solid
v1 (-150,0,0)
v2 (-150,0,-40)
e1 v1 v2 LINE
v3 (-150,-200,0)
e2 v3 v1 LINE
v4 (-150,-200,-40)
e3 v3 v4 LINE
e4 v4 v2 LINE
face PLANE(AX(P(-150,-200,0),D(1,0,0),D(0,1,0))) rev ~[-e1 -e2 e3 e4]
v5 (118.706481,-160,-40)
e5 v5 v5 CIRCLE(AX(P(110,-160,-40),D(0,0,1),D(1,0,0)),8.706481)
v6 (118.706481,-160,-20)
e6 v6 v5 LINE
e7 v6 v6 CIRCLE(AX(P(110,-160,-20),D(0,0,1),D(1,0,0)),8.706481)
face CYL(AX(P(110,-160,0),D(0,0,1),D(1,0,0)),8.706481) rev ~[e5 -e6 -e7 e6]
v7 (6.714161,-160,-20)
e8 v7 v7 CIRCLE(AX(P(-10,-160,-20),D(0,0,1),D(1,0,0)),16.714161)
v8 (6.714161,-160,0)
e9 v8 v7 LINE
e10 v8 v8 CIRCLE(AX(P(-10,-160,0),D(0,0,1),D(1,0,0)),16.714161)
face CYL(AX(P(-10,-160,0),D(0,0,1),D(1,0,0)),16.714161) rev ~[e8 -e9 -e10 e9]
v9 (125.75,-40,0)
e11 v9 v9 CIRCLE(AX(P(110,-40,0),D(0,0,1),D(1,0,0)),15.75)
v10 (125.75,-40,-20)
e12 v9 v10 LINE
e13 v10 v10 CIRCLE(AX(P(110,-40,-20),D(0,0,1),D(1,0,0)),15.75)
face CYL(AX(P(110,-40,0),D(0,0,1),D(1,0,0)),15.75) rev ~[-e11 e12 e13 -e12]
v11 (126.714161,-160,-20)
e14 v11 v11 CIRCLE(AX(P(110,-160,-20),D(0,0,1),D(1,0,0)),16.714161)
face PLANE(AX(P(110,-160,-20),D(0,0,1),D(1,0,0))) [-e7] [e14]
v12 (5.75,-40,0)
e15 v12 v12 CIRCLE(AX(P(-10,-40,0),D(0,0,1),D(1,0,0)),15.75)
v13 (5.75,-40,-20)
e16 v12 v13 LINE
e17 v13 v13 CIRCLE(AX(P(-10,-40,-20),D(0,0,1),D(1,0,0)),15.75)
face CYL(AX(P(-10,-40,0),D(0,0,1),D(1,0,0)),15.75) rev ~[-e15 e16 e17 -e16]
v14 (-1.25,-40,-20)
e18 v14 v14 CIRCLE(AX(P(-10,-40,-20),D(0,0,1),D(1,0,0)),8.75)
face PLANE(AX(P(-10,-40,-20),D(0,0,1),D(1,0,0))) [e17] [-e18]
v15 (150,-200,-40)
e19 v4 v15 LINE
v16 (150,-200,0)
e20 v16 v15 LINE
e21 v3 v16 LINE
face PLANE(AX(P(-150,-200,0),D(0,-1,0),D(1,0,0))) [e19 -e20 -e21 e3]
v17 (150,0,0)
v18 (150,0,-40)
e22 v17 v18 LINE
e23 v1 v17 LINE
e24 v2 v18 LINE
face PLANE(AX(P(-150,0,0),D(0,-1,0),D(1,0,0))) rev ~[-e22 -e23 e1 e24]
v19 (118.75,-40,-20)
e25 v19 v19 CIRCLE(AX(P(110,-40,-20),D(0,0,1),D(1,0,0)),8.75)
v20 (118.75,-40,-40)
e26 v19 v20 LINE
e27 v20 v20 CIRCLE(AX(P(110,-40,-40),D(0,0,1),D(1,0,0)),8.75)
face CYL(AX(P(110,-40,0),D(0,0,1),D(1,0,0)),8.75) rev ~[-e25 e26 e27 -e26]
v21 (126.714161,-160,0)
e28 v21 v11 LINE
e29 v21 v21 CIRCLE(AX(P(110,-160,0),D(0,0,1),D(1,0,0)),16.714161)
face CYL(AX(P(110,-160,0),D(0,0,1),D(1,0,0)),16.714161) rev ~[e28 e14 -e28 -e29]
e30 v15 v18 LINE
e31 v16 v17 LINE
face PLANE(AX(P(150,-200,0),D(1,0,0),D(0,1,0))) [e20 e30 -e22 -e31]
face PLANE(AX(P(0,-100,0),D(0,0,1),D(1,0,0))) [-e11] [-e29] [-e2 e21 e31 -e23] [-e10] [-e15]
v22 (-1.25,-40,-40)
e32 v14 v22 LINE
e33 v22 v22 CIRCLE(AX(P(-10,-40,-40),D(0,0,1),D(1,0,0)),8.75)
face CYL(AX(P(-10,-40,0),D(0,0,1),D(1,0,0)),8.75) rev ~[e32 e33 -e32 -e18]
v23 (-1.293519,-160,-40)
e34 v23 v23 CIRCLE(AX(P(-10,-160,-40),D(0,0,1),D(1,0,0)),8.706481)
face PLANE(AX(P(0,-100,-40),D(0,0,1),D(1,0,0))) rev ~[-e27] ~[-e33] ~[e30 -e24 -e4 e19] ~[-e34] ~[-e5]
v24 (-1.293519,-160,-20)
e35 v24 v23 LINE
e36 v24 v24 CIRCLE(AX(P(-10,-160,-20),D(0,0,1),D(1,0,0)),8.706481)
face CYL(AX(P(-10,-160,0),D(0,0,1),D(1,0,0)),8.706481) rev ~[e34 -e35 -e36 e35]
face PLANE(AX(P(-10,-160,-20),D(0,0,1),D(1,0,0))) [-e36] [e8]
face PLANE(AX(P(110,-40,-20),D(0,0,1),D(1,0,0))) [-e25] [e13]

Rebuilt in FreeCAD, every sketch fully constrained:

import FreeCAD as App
import Part
import Sketcher

V = App.Vector
Q = App.Units.Quantity

doc = App.newDocument("Part")
body = doc.addObject("PartDesign::Body", "Body")

# Sketch on XY plane
sketch1 = body.newObject("Sketcher::SketchObject", "Sketch")
sketch1.AttachmentSupport = (doc.getObject("XY_Plane"), [""])
sketch1.MapMode = "FlatFace"
sketch1.addGeometry([
    Part.LineSegment(V(-150, 0, 0), V(-150, -200, 0)),  # 0
    Part.LineSegment(V(-150, -200, 0), V(150, -200, 0)),  # 1
    Part.LineSegment(V(150, -200, 0), V(150, 0, 0)),  # 2
    Part.LineSegment(V(150, 0, 0), V(-150, 0, 0)),  # 3
    Part.Circle(V(-10, -160, 0), V(0, 0, 1), 9),  # 4
    Part.Circle(V(110, -160, 0), V(0, 0, 1), 9),  # 5
    Part.Circle(V(-10, -40, 0), V(0, 0, 1), 9),  # 6
    Part.Circle(V(110, -40, 0), V(0, 0, 1), 9),  # 7
], False)
sketch1.addConstraint([
    Sketcher.Constraint("Coincident", 0, 2, 1, 1),
    Sketcher.Constraint("Coincident", 1, 2, 2, 1),
    Sketcher.Constraint("Coincident", 2, 2, 3, 1),
    Sketcher.Constraint("Coincident", 3, 2, 0, 1),
    Sketcher.Constraint("Vertical", 0),
    Sketcher.Constraint("Horizontal", 1),
    Sketcher.Constraint("Vertical", 2),
    Sketcher.Constraint("Horizontal", 3),
    Sketcher.Constraint("Equal", 4, 5),
    Sketcher.Constraint("Equal", 6, 7),
    Sketcher.Constraint("Symmetric", 2, 2, 3, 2, -1, 1),
    Sketcher.Constraint("Horizontal", 4, 3, 5, 3),
    Sketcher.Constraint("Horizontal", 6, 3, 7, 3),
    Sketcher.Constraint("Vertical", 4, 3, 6, 3),
    Sketcher.Constraint("Vertical", 5, 3, 7, 3),
    Sketcher.Constraint("Diameter", 6, Q("17.5 mm")),
    Sketcher.Constraint("DistanceX", 1, 1, 1, 2, Q("300 mm")),
    Sketcher.Constraint("DistanceY", 0, 2, 0, 1, Q("200 mm")),
    Sketcher.Constraint("DistanceX", 4, 3, -1, 1, Q("10 mm")),
    Sketcher.Constraint("DistanceY", 4, 3, -1, 1, Q("160 mm")),
    Sketcher.Constraint("DistanceX", -1, 1, 5, 3, Q("110 mm")),
    Sketcher.Constraint("DistanceY", 6, 3, -1, 1, Q("40 mm")),
    Sketcher.Constraint("Diameter", 4, Q("17.412962 mm")),
])
pad1 = body.newObject("PartDesign::Pad", "Pad")
pad1.Profile = sketch1
pad1.Length = 40
pad1.Reversed = True

# Sketch on XY plane
sketch2 = body.newObject("Sketcher::SketchObject", "Sketch001")
sketch2.AttachmentSupport = (doc.getObject("XY_Plane"), [""])
sketch2.MapMode = "FlatFace"
sketch2.addGeometry([
    Part.Circle(V(-10, -160, 0), V(0, 0, 1), 17),  # 0
    Part.Circle(V(-10, -160, 0), V(0, 0, 1), 9),  # 1
    Part.Circle(V(110, -160, 0), V(0, 0, 1), 17),  # 2
    Part.Circle(V(110, -160, 0), V(0, 0, 1), 9),  # 3
    Part.Circle(V(-10, -40, 0), V(0, 0, 1), 16),  # 4
    Part.Circle(V(-10, -40, 0), V(0, 0, 1), 9),  # 5
    Part.Circle(V(110, -40, 0), V(0, 0, 1), 16),  # 6
    Part.Circle(V(110, -40, 0), V(0, 0, 1), 9),  # 7
], False)
sketch2.addConstraint([
    Sketcher.Constraint("Coincident", 1, 3, 0, 3),
    Sketcher.Constraint("Coincident", 3, 3, 2, 3),
    Sketcher.Constraint("Coincident", 5, 3, 4, 3),
    Sketcher.Constraint("Coincident", 7, 3, 6, 3),
    Sketcher.Constraint("Equal", 0, 2),
    Sketcher.Constraint("Equal", 1, 3),
    Sketcher.Constraint("Equal", 4, 6),
    Sketcher.Constraint("Equal", 5, 7),
    Sketcher.Constraint("Horizontal", 1, 3, 2, 3),
    Sketcher.Constraint("Horizontal", 5, 3, 6, 3),
    Sketcher.Constraint("Vertical", 1, 3, 4, 3),
    Sketcher.Constraint("Vertical", 3, 3, 6, 3),
    Sketcher.Constraint("Diameter", 4, Q("31.5 mm")),
    Sketcher.Constraint("Diameter", 5, Q("17.5 mm")),
    Sketcher.Constraint("DistanceX", 0, 3, -1, 1, Q("10 mm")),
    Sketcher.Constraint("DistanceY", 0, 3, -1, 1, Q("160 mm")),
    Sketcher.Constraint("DistanceX", -1, 1, 2, 3, Q("110 mm")),
    Sketcher.Constraint("DistanceY", 4, 3, -1, 1, Q("40 mm")),
    Sketcher.Constraint("Diameter", 0, Q("33.428323 mm")),
    Sketcher.Constraint("Diameter", 1, Q("17.412962 mm")),
])
pocket1 = body.newObject("PartDesign::Pocket", "Pocket")
pocket1.Profile = sketch2
pocket1.Length = 20

doc.recompute()
